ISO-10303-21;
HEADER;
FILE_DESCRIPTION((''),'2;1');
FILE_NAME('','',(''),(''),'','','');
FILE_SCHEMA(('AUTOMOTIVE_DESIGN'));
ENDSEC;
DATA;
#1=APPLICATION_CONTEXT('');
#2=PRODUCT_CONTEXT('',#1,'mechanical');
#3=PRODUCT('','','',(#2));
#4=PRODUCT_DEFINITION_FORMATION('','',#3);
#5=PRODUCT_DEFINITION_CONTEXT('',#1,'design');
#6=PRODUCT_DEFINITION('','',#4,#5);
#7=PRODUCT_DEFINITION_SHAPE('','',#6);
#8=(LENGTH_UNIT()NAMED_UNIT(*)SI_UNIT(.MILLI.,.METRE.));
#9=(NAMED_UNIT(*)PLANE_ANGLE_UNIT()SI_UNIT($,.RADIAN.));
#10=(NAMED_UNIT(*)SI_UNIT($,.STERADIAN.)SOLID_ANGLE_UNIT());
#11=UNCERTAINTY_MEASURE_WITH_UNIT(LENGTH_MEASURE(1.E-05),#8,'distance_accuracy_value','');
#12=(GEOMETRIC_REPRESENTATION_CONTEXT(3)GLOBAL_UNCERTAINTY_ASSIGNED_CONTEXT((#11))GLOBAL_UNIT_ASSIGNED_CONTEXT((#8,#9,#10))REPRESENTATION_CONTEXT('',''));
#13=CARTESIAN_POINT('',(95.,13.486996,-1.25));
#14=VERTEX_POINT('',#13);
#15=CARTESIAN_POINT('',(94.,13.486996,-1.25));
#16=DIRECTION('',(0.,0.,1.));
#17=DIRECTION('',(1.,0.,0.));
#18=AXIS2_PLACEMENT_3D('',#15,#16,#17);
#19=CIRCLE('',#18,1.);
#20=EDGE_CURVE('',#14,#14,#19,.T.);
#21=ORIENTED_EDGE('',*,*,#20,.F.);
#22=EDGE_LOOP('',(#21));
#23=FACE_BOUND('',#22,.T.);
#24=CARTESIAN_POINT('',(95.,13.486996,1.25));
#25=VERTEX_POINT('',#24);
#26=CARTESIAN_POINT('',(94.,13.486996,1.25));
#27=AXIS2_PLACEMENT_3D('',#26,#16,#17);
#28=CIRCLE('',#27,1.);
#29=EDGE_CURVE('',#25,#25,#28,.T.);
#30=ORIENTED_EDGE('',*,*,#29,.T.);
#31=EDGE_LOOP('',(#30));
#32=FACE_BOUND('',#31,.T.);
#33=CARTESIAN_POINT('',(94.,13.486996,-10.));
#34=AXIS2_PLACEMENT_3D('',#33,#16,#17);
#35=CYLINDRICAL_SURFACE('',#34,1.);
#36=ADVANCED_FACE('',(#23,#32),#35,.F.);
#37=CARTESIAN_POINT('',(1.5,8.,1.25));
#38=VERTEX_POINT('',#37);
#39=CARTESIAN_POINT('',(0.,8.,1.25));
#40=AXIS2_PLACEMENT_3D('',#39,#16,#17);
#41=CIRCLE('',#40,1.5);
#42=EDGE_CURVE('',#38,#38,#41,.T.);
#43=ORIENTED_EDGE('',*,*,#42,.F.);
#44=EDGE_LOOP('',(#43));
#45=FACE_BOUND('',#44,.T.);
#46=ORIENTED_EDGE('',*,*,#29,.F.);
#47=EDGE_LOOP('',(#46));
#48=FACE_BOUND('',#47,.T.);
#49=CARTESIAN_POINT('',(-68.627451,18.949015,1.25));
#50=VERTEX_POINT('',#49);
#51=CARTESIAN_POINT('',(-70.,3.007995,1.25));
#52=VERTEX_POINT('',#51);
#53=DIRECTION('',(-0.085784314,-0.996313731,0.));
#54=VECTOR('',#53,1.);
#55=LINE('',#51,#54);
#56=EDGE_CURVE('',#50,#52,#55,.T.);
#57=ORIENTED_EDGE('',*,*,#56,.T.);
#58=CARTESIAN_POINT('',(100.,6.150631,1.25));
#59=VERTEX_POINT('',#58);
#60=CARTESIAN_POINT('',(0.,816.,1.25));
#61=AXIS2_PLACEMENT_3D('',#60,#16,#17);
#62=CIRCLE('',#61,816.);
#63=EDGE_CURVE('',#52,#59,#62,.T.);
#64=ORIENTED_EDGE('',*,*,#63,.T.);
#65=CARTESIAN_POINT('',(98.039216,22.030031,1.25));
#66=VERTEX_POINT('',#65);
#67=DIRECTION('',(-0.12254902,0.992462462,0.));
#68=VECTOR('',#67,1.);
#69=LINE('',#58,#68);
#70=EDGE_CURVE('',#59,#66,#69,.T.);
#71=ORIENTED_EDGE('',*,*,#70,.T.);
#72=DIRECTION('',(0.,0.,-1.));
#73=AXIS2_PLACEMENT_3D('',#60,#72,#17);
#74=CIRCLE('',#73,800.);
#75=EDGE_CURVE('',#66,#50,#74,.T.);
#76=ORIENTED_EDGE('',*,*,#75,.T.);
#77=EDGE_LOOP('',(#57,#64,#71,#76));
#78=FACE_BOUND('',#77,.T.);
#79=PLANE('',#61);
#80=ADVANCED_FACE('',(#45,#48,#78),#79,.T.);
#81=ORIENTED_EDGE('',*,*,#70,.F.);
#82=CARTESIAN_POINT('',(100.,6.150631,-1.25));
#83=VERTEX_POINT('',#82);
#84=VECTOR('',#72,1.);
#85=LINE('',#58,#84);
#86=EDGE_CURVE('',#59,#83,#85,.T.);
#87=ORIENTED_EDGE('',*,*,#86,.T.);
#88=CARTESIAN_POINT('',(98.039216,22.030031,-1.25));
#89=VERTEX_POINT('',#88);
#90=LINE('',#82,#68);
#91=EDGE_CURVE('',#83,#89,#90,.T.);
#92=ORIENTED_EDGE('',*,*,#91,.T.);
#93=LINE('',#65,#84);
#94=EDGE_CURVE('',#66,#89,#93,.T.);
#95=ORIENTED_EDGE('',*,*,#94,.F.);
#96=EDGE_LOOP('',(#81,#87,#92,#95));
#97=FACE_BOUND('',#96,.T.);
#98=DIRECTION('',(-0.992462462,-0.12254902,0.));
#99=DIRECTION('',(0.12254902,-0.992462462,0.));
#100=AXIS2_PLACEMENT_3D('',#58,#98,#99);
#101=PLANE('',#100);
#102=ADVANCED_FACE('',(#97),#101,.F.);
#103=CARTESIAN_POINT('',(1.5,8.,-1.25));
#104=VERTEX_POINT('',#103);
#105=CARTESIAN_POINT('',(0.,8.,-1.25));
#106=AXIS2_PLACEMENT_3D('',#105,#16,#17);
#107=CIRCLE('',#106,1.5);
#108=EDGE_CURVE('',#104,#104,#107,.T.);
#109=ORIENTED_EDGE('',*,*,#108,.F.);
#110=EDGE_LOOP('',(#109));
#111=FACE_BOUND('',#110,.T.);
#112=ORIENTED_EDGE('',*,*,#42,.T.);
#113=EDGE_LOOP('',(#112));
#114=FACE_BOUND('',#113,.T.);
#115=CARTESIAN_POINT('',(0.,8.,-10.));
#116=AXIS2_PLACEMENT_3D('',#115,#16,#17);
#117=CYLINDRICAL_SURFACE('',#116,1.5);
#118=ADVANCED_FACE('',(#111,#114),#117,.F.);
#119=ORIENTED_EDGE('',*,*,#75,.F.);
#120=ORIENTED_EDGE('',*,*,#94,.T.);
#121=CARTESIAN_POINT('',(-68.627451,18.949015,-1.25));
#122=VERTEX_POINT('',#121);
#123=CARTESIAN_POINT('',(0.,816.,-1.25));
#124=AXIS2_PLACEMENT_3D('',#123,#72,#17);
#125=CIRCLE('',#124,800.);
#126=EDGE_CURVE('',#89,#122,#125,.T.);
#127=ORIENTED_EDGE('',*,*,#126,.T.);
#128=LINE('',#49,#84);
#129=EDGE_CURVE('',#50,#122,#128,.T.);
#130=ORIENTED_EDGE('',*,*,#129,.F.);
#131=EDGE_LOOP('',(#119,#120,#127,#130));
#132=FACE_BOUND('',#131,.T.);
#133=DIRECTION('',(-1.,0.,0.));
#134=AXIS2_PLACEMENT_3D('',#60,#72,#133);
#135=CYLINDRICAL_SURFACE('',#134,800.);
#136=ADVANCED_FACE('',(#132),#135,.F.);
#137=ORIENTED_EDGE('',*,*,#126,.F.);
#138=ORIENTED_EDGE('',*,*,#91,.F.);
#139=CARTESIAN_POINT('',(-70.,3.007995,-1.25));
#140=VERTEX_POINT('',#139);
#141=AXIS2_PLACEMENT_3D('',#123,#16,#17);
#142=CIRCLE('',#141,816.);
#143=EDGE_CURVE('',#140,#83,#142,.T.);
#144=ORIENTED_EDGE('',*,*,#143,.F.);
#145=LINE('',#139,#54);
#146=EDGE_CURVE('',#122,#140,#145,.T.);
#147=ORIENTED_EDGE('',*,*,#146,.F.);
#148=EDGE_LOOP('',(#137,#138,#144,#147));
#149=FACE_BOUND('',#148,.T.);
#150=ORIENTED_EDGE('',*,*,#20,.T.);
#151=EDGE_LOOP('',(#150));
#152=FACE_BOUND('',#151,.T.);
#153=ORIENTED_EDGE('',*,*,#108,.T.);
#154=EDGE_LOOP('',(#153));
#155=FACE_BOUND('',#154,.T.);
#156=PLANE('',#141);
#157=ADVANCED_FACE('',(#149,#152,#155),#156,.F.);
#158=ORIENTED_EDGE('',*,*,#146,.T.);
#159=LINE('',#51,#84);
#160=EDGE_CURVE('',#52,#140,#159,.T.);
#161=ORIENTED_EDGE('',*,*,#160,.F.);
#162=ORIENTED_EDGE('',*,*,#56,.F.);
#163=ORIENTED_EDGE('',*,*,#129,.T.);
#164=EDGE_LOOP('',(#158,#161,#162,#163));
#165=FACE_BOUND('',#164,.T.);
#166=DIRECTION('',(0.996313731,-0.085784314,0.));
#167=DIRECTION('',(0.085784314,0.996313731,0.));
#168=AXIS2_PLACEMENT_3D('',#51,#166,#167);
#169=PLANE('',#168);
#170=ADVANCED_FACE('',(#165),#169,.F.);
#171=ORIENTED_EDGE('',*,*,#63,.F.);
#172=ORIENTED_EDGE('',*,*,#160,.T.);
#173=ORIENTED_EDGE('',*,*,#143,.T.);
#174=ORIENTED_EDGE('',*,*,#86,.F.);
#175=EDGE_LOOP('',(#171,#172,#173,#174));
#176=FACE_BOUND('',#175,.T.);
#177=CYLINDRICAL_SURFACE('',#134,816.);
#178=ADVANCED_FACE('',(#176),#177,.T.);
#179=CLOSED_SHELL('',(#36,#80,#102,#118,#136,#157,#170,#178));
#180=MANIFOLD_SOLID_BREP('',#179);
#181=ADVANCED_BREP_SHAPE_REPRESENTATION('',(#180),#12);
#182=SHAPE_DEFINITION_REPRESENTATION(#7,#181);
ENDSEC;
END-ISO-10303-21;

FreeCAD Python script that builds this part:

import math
import FreeCAD as App
import Part
import Sketcher
from FreeCAD import Vector
Q = App.Units.Quantity

doc = App.newDocument("Part")
params = doc.addObject("Spreadsheet::Sheet", "Params")
for row, (alias, value) in enumerate([
    ("sketch1_radius", "800 mm"),
    ("sketch1_radius2", "816 mm"),
    ("pad1_length", "2.5 mm"),
    ("sketch2_diameter", "3 mm"),
    ("pocket1_length", "20 mm"),
    ("sketch3_diameter", "2 mm"),
    ("pocket2_length", "20 mm"),
], start=1):
    params.set(f"A{row}", alias)
    params.set(f"B{row}", "=" + value)
    params.setAlias(f"B{row}", alias)

body = doc.addObject("PartDesign::Body", "Body")

# Sketch on XY plane
sketch1 = body.newObject("Sketcher::SketchObject", "Sketch")
sketch1.AttachmentSupport = (doc.getObject("XY_Plane"), [""])
sketch1.MapMode = "FlatFace"
sketch1.addGeometry([
    Part.LineSegment(Vector(100, 6, 0), Vector(98, 22, 0)),
    Part.ArcOfCircle(Part.Circle(Vector(0, 816, 0), Vector(0, 0, 1), 800), math.radians(-94.92), math.radians(-82.96)),
    Part.LineSegment(Vector(-69, 19, 0), Vector(-70, 3, 0)),
    Part.ArcOfCircle(Part.Circle(Vector(0, 816, 0), Vector(0, 0, 1), 816), math.radians(-94.92), math.radians(-82.96)),
], False)
sketch1.addConstraint([
    Sketcher.Constraint("Coincident", 0, 2, 1, 2),
    Sketcher.Constraint("Coincident", 1, 1, 2, 1),
    Sketcher.Constraint("Coincident", 2, 2, 3, 1),
    Sketcher.Constraint("Coincident", 3, 2, 0, 1),
    Sketcher.Constraint("Coincident", 3, 3, 1, 3),
    Sketcher.Constraint("PointOnObject", 1, 3, -2),
    Sketcher.Constraint("Radius", 1, Q("800 mm")),
    Sketcher.Constraint("Radius", 3, Q("816 mm")),
    Sketcher.Constraint("DistanceY", -1, 1, 1, 3, Q("816 mm")),
    Sketcher.Constraint("DistanceX", 2, 2, -1, 1, Q("70 mm")),
    Sketcher.Constraint("DistanceY", -1, 1, 0, 2, Q("22.030031 mm")),
    Sketcher.Constraint("Angle", 0, Q("97.039237 deg")),
    Sketcher.Constraint("Angle", 2, Q("-94.921127 deg")),
])
sketch1.setExpression("Constraints[6]", "Params.sketch1_radius")
sketch1.setExpression("Constraints[7]", "Params.sketch1_radius2")
pad1 = body.newObject("PartDesign::Pad", "Pad")
pad1.Profile = sketch1
pad1.setExpression("Length", "Params.pad1_length")
pad1.Midplane = True

# Sketch on XY plane
sketch2 = body.newObject("Sketcher::SketchObject", "Sketch001")
sketch2.AttachmentSupport = (doc.getObject("XY_Plane"), [""])
sketch2.MapMode = "FlatFace"
sketch2.addGeometry(Part.Circle(Vector(0, 8, 0), Vector(0, 0, 1), 1.5), False)
sketch2.addConstraint([
    Sketcher.Constraint("PointOnObject", 0, 3, -2),
    Sketcher.Constraint("Diameter", 0, Q("3 mm")),
    Sketcher.Constraint("DistanceY", -1, 1, 0, 3, Q("8 mm")),
])
sketch2.setExpression("Constraints[1]", "Params.sketch2_diameter")
pocket1 = body.newObject("PartDesign::Pocket", "Pocket")
pocket1.Profile = sketch2
pocket1.setExpression("Length", "Params.pocket1_length")
pocket1.Midplane = True

# Sketch on XY plane
sketch3 = body.newObject("Sketcher::SketchObject", "Sketch002")
sketch3.AttachmentSupport = (doc.getObject("XY_Plane"), [""])
sketch3.MapMode = "FlatFace"
sketch3.addGeometry(Part.Circle(Vector(94, 13.5, 0), Vector(0, 0, 1), 1), False)
sketch3.addConstraint([
    Sketcher.Constraint("Diameter", 0, Q("2 mm")),
    Sketcher.Constraint("DistanceX", -1, 1, 0, 3, Q("94 mm")),
    Sketcher.Constraint("DistanceY", -1, 1, 0, 3, Q("13.486996 mm")),
])
sketch3.setExpression("Constraints[0]", "Params.sketch3_diameter")
pocket2 = body.newObject("PartDesign::Pocket", "Pocket001")
pocket2.Profile = sketch3
pocket2.setExpression("Length", "Params.pocket2_length")
pocket2.Midplane = True

doc.recompute()
